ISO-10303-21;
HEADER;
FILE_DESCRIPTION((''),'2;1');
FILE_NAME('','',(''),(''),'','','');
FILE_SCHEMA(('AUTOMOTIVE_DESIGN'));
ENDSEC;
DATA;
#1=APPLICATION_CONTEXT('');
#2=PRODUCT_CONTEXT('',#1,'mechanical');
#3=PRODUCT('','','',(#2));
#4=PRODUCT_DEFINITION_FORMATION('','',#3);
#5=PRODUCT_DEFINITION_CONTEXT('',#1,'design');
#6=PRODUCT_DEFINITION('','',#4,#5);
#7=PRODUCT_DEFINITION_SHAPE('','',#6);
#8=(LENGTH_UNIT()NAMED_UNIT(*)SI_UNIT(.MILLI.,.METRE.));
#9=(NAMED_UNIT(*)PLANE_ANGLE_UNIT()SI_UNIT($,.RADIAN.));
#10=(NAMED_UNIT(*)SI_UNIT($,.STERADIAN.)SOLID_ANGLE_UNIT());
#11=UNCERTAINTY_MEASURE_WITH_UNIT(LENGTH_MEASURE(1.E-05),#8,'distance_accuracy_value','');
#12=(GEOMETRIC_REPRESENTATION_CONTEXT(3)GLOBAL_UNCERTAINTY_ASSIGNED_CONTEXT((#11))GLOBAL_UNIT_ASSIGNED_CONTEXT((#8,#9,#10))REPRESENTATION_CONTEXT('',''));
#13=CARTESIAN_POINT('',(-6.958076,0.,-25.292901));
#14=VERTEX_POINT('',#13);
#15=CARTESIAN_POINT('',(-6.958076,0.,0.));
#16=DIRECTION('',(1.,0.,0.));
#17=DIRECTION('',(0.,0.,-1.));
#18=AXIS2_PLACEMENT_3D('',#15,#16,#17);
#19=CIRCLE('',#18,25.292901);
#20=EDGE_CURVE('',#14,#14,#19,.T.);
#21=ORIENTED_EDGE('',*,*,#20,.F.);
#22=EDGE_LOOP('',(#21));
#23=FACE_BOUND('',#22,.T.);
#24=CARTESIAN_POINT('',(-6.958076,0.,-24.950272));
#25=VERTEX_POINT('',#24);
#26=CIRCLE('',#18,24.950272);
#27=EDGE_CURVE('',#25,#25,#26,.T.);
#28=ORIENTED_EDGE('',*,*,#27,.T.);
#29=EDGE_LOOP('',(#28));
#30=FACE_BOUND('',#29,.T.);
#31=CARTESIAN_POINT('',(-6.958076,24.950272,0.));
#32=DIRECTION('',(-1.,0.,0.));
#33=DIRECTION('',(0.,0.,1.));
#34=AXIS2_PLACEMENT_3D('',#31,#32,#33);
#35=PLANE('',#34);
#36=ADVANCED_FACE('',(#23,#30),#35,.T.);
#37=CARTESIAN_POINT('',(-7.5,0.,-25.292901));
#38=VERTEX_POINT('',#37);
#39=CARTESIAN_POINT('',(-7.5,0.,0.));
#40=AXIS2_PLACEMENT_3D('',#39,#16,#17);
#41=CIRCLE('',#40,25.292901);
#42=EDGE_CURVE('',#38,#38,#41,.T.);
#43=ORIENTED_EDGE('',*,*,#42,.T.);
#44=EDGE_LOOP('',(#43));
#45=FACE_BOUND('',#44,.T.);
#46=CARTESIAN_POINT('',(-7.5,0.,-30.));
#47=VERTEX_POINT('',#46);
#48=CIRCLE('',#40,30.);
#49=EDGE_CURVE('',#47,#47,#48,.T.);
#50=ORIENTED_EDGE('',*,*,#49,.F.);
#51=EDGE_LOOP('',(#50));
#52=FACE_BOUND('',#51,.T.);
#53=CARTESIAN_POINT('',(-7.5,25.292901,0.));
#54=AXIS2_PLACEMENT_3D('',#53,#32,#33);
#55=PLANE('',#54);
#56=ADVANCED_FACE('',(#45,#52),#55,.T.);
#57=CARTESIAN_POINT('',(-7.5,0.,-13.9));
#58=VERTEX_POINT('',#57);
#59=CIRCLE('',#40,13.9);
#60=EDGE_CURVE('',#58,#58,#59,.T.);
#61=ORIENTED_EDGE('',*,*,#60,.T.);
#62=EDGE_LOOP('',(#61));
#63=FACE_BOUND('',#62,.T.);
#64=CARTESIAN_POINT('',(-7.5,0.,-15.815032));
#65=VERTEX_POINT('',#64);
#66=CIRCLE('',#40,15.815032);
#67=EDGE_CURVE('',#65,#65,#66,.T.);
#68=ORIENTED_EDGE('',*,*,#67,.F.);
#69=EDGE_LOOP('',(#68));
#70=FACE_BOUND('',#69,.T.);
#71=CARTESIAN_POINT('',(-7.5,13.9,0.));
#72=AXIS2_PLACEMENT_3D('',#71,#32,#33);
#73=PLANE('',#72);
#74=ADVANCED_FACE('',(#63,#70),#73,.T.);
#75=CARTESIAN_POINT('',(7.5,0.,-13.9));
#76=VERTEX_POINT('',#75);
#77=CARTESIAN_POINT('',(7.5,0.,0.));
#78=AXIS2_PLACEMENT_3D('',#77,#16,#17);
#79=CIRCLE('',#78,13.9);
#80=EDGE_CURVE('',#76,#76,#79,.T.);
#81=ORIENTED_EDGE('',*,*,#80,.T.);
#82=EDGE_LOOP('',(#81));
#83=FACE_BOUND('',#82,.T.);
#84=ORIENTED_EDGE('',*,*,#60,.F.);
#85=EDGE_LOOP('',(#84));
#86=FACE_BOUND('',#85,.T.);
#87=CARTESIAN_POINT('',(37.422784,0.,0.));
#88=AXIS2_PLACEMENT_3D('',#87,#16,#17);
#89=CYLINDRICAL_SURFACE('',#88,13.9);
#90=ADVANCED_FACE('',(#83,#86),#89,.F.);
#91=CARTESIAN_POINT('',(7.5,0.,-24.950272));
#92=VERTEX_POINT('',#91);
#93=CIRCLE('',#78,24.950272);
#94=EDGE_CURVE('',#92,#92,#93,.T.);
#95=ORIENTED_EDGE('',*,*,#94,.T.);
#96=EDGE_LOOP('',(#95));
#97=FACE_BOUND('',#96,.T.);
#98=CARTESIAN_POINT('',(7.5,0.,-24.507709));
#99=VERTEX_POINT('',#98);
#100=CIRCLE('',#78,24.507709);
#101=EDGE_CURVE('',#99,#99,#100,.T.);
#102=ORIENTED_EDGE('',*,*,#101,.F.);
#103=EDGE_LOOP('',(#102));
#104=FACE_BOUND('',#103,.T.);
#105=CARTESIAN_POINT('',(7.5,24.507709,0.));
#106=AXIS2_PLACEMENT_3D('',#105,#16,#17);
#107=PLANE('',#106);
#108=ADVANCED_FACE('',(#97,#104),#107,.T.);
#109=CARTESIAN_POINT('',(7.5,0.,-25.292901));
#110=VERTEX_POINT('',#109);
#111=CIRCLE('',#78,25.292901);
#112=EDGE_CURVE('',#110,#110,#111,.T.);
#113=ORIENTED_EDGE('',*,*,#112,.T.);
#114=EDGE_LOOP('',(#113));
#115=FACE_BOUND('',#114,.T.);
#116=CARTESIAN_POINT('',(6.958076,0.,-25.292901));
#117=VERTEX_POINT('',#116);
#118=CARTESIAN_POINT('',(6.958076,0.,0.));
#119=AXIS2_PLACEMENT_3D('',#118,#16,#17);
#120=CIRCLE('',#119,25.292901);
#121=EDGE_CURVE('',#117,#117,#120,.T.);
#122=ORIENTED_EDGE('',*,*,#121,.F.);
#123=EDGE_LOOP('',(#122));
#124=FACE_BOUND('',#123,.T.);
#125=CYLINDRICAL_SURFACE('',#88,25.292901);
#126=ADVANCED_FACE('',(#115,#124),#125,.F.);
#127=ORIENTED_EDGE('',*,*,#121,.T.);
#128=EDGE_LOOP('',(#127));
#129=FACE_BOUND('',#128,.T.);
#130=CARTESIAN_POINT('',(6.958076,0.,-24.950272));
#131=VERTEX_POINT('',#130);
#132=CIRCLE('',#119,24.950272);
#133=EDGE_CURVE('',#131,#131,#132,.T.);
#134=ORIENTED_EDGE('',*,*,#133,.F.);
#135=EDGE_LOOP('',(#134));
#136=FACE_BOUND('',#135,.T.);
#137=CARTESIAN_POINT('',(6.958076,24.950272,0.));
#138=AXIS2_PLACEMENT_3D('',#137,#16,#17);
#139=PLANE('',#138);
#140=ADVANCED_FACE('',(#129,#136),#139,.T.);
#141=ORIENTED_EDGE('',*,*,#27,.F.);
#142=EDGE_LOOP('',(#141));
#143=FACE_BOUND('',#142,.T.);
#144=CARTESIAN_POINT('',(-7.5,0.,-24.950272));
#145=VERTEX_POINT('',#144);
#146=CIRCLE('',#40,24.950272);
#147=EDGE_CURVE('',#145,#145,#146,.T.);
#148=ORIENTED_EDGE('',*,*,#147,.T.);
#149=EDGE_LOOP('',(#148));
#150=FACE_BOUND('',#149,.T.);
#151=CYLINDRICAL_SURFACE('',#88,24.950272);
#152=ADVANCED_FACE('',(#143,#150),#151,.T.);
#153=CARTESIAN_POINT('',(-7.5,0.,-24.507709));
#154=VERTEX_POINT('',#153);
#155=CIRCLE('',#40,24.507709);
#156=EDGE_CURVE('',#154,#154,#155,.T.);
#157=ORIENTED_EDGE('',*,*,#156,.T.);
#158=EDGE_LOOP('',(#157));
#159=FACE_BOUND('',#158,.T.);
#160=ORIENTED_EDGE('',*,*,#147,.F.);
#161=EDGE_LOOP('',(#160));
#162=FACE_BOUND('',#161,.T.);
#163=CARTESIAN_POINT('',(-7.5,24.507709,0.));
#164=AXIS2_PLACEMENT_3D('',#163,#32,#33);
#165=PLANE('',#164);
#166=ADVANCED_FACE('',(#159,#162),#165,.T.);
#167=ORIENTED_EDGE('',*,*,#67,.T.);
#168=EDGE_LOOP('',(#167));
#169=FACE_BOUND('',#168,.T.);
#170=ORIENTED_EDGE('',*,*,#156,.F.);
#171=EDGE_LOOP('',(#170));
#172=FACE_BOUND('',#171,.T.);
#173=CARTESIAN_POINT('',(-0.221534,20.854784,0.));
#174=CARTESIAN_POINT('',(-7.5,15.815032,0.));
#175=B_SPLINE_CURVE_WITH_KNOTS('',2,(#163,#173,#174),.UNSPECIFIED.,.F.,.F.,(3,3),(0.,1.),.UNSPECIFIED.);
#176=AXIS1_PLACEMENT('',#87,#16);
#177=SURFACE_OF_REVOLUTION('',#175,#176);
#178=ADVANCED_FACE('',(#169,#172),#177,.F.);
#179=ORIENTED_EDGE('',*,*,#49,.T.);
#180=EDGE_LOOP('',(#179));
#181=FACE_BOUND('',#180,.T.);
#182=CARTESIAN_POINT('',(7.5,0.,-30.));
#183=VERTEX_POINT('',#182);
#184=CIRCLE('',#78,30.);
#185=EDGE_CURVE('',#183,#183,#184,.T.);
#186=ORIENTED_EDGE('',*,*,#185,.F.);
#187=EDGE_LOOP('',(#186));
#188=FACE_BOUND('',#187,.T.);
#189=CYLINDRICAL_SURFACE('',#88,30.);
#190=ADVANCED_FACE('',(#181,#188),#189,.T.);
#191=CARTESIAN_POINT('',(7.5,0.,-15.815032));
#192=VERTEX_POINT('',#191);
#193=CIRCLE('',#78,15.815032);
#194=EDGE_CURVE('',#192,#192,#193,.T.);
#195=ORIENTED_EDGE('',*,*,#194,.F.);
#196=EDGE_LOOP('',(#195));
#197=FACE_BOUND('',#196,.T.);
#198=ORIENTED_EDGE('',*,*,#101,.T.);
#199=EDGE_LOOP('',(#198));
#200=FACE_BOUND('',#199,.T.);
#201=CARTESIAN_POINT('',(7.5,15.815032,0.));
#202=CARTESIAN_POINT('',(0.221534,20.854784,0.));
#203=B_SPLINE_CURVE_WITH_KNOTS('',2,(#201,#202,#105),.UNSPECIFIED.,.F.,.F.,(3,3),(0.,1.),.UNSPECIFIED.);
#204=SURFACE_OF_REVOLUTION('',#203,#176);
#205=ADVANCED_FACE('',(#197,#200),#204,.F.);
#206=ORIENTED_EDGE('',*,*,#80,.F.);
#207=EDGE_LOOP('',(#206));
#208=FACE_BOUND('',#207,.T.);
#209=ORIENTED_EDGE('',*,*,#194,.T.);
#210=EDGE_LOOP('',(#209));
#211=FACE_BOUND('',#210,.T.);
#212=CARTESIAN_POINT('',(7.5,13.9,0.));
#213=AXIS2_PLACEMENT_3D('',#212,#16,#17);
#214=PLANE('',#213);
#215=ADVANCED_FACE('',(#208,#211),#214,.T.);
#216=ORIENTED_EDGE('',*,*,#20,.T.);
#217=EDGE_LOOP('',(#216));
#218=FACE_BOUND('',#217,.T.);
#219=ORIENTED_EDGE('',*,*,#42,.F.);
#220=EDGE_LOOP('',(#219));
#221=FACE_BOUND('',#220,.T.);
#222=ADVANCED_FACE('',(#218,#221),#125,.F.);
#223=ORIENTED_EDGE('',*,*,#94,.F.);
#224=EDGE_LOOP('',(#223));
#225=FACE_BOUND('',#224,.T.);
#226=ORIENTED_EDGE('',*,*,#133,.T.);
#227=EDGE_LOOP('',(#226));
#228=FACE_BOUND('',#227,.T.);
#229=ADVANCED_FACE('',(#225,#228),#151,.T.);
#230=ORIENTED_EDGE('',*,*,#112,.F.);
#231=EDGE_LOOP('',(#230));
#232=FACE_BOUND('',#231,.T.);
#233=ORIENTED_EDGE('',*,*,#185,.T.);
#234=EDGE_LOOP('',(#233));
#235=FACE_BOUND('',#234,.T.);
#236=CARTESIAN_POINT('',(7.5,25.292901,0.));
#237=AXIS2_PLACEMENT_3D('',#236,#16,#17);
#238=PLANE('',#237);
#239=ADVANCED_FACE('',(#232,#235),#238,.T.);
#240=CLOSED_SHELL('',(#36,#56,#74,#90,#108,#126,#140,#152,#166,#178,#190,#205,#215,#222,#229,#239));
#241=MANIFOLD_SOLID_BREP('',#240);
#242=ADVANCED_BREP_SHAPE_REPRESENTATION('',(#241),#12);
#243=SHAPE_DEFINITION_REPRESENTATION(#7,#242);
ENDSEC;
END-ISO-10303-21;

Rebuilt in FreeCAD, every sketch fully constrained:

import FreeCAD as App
import Part
import Sketcher
from FreeCAD import Vector
Q = App.Units.Quantity

doc = App.newDocument("Part")
body = doc.addObject("PartDesign::Body", "Body")

# Sketch on XY plane
sketch1 = doc.addObject("Sketcher::SketchObject", "Sketch")
body.addObject(sketch1)
sketch1.AttachmentSupport = (doc.XY_Plane, [""])
sketch1.MapMode = "FlatFace"
sketch1.addGeometry(Part.LineSegment(Vector(-7.5, 13.9, 0), Vector(7.5, 13.9, 0)), False)
sketch1.addGeometry(Part.LineSegment(Vector(7.5, 13.9, 0), Vector(7.5, 15.815032, 0)), False)
sketch1.addGeometry(Part.BSplineCurve([Vector(7.5, 15.815032, 0), Vector(0.221534, 20.854784, 0), Vector(7.5, 24.507709, 0)], [3, 3], [0, 1], False, 2, [1, 1, 1], False), False)
sketch1.addGeometry(Part.LineSegment(Vector(7.5, 24.507709, 0), Vector(7.5, 24.950272, 0)), False)
sketch1.addGeometry(Part.LineSegment(Vector(7.5, 24.950272, 0), Vector(6.958076, 24.950272, 0)), False)
sketch1.addGeometry(Part.LineSegment(Vector(6.958076, 24.950272, 0), Vector(6.958076, 25.292901, 0)), False)
sketch1.addGeometry(Part.LineSegment(Vector(6.958076, 25.292901, 0), Vector(7.5, 25.292901, 0)), False)
sketch1.addGeometry(Part.LineSegment(Vector(7.5, 25.292901, 0), Vector(7.5, 30, 0)), False)
sketch1.addGeometry(Part.LineSegment(Vector(7.5, 30, 0), Vector(-7.5, 30, 0)), False)
sketch1.addGeometry(Part.LineSegment(Vector(-7.5, 30, 0), Vector(-7.5, 25.292901, 0)), False)
sketch1.addGeometry(Part.LineSegment(Vector(-7.5, 25.292901, 0), Vector(-6.958076, 25.292901, 0)), False)
sketch1.addGeometry(Part.LineSegment(Vector(-6.958076, 25.292901, 0), Vector(-6.958076, 24.950272, 0)), False)
sketch1.addGeometry(Part.LineSegment(Vector(-6.958076, 24.950272, 0), Vector(-7.5, 24.950272, 0)), False)
sketch1.addGeometry(Part.LineSegment(Vector(-7.5, 24.950272, 0), Vector(-7.5, 24.507709, 0)), False)
sketch1.addGeometry(Part.BSplineCurve([Vector(-7.5, 15.815032, 0), Vector(-0.221534, 20.854784, 0), Vector(-7.5, 24.507709, 0)], [3, 3], [0, 1], False, 2, [1, 1, 1], False), False)
sketch1.addGeometry(Part.LineSegment(Vector(-7.5, 15.815032, 0), Vector(-7.5, 13.9, 0)), False)
sketch1.addConstraint(Sketcher.Constraint("Block", 2))
sketch1.addConstraint(Sketcher.Constraint("Block", 14))
sketch1.addConstraint(Sketcher.Constraint("Coincident", 0, 2, 1, 1))
sketch1.addConstraint(Sketcher.Constraint("Coincident", 1, 2, 2, 1))
sketch1.addConstraint(Sketcher.Constraint("Coincident", 2, 2, 3, 1))
sketch1.addConstraint(Sketcher.Constraint("Coincident", 3, 2, 4, 1))
sketch1.addConstraint(Sketcher.Constraint("Coincident", 4, 2, 5, 1))
sketch1.addConstraint(Sketcher.Constraint("Coincident", 5, 2, 6, 1))
sketch1.addConstraint(Sketcher.Constraint("Coincident", 6, 2, 7, 1))
sketch1.addConstraint(Sketcher.Constraint("Coincident", 7, 2, 8, 1))
sketch1.addConstraint(Sketcher.Constraint("Coincident", 8, 2, 9, 1))
sketch1.addConstraint(Sketcher.Constraint("Coincident", 9, 2, 10, 1))
sketch1.addConstraint(Sketcher.Constraint("Coincident", 10, 2, 11, 1))
sketch1.addConstraint(Sketcher.Constraint("Coincident", 11, 2, 12, 1))
sketch1.addConstraint(Sketcher.Constraint("Coincident", 12, 2, 13, 1))
sketch1.addConstraint(Sketcher.Constraint("Coincident", 13, 2, 14, 2))
sketch1.addConstraint(Sketcher.Constraint("Coincident", 14, 1, 15, 1))
sketch1.addConstraint(Sketcher.Constraint("Coincident", 15, 2, 0, 1))
sketch1.addConstraint(Sketcher.Constraint("Horizontal", 0))
sketch1.addConstraint(Sketcher.Constraint("Vertical", 1))
sketch1.addConstraint(Sketcher.Constraint("Vertical", 3))
sketch1.addConstraint(Sketcher.Constraint("Horizontal", 4))
sketch1.addConstraint(Sketcher.Constraint("Vertical", 5))
sketch1.addConstraint(Sketcher.Constraint("Horizontal", 6))
sketch1.addConstraint(Sketcher.Constraint("Vertical", 7))
sketch1.addConstraint(Sketcher.Constraint("Horizontal", 8))
sketch1.addConstraint(Sketcher.Constraint("Vertical", 9))
sketch1.addConstraint(Sketcher.Constraint("Horizontal", 10))
sketch1.addConstraint(Sketcher.Constraint("Vertical", 11))
sketch1.addConstraint(Sketcher.Constraint("Horizontal", 12))
sketch1.addConstraint(Sketcher.Constraint("Vertical", 13))
sketch1.addConstraint(Sketcher.Constraint("Vertical", 15))
sketch1.addConstraint(Sketcher.Constraint("Symmetric", 6, 2, 9, 2, -2))
sketch1.addConstraint(Sketcher.Constraint("Symmetric", 4, 2, 11, 2, -2))
sketch1.addConstraint(Sketcher.Constraint("Vertical", 3, 2, 6, 2))
sketch1.addConstraint(Sketcher.Constraint("DistanceY", -1, 1, 7, 2, Q("30 mm")))
sketch1.addConstraint(Sketcher.Constraint("DistanceY", -1, 1, 0, 2, Q("13.9 mm")))
sketch1.addConstraint(Sketcher.Constraint("DistanceY", 7, 1, 7, 2, Q("4.707099 mm")))
sketch1.addConstraint(Sketcher.Constraint("DistanceY", 5, 1, 5, 2, Q("0.342629 mm")))
sketch1.addConstraint(Sketcher.Constraint("DistanceX", 4, 2, 4, 1, Q("0.541924 mm")))
revolution = doc.addObject("PartDesign::Revolution", "Revolution")
body.addObject(revolution)
revolution.Profile = sketch1
revolution.ReferenceAxis = (sketch1, ["H_Axis"])
revolution.Angle = 360

doc.recompute()
